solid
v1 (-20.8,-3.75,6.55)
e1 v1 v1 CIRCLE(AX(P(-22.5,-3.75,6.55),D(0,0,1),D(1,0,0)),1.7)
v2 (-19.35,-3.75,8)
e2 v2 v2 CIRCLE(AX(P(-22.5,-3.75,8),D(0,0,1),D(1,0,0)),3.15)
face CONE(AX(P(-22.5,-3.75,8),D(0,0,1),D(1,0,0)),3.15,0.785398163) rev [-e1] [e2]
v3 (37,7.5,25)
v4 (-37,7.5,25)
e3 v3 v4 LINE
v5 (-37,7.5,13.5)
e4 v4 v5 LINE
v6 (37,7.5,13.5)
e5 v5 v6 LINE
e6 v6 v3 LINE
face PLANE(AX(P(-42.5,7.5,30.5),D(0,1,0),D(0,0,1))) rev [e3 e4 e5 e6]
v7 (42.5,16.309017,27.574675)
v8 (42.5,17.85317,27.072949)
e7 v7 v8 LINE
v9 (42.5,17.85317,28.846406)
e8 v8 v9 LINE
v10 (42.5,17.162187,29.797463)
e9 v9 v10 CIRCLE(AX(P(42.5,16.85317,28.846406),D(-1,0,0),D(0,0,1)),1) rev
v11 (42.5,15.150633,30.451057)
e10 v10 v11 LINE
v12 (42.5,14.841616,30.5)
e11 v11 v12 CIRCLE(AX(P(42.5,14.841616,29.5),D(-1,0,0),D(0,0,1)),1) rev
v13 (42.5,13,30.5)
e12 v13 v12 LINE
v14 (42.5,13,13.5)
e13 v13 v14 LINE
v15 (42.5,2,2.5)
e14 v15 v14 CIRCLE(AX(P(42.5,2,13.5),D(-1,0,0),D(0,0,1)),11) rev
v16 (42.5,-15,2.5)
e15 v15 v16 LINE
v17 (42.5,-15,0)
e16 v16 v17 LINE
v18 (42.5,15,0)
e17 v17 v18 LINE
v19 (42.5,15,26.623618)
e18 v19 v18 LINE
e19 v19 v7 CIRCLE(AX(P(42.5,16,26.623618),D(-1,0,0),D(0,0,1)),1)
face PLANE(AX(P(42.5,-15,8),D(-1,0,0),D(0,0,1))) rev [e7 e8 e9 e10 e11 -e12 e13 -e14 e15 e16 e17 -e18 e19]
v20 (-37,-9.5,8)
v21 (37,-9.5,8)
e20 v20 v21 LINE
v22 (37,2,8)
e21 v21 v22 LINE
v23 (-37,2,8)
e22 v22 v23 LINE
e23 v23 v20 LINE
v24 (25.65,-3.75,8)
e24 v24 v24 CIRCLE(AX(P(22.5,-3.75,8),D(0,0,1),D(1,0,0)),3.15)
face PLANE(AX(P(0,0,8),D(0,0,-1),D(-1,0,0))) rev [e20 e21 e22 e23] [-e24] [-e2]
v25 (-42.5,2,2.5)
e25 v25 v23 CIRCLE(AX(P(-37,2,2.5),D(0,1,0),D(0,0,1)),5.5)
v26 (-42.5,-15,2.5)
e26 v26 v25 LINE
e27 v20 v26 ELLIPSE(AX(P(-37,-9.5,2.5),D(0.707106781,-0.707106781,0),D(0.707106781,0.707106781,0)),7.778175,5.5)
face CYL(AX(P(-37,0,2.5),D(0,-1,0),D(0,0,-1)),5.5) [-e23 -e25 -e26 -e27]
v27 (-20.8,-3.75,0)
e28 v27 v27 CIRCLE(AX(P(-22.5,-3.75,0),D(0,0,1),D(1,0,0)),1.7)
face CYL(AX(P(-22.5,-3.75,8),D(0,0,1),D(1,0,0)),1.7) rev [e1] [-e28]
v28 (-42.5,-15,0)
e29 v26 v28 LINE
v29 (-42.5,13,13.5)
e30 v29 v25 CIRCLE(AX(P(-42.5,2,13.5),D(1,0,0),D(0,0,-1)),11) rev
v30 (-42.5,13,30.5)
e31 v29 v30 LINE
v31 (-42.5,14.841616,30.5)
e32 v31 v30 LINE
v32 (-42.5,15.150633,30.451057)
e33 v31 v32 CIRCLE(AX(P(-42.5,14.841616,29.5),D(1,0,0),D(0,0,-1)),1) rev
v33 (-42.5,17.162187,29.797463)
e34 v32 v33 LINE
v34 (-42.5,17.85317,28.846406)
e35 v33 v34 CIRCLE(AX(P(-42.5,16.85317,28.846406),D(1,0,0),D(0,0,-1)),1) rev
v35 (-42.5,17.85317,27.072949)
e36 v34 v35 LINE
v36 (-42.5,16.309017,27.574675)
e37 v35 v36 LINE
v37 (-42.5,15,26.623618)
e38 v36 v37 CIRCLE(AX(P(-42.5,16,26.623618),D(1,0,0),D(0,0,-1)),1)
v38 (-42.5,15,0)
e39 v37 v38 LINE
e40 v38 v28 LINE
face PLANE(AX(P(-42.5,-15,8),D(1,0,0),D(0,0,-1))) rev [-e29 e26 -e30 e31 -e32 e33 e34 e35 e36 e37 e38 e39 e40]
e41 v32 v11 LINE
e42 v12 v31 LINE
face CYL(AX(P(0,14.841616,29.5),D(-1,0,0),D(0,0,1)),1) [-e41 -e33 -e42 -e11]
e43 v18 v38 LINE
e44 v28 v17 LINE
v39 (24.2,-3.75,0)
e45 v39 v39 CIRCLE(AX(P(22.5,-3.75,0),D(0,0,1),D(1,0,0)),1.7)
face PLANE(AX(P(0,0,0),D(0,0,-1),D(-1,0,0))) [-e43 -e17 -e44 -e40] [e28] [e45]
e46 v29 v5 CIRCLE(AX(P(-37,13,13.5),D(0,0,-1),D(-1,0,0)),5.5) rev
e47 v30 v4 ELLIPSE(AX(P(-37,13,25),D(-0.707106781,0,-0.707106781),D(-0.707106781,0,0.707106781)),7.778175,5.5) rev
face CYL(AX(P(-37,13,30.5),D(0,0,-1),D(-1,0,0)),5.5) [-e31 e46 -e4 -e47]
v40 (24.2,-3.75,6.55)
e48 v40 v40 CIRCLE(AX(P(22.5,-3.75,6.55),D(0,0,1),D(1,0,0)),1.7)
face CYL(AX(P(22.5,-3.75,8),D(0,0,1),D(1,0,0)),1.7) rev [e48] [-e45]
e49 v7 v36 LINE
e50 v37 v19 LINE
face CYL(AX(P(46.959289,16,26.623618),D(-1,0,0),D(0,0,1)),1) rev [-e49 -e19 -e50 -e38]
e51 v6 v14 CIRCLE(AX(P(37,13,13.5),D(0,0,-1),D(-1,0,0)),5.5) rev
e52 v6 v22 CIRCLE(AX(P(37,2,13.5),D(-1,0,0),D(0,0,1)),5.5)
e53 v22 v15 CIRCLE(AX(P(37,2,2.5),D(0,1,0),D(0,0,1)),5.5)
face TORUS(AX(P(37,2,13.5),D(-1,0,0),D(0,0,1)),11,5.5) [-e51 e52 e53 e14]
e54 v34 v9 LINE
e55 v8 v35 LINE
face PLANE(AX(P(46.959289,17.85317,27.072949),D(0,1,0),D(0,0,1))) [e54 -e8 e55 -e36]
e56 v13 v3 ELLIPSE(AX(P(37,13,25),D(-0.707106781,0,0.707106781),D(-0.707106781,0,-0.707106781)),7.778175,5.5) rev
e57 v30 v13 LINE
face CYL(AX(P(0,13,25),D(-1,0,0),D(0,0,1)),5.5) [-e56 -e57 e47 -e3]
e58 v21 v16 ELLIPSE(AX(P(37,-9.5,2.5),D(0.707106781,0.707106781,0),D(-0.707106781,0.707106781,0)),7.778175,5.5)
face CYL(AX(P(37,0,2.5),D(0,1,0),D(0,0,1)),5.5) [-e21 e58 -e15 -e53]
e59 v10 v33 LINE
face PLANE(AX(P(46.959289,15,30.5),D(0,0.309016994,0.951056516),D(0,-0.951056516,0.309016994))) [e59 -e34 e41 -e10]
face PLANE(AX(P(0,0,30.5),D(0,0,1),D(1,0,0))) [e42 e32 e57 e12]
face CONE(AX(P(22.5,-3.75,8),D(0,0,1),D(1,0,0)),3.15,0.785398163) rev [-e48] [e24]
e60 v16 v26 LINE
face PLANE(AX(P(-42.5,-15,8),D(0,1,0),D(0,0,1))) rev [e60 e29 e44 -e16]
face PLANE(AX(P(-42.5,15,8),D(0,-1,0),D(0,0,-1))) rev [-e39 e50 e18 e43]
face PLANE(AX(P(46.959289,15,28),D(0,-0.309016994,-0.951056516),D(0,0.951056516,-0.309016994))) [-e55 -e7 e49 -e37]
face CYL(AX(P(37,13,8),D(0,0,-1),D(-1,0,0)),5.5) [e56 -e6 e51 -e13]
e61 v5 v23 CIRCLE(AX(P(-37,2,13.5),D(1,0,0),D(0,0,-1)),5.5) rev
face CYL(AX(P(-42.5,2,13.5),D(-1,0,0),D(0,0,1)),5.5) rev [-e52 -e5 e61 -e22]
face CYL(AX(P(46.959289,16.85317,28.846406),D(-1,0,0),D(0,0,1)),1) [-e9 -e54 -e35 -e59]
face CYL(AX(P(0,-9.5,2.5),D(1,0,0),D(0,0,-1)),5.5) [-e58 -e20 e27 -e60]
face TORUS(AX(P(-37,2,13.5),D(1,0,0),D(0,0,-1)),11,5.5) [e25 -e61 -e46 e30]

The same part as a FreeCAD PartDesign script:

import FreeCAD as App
import Part
import Sketcher
from FreeCAD import Vector
Q = App.Units.Quantity


def edges_at(feature, points):
    """Names of the edges that pass closest to the given points."""
    edges = feature.Shape.Edges
    near = lambda p: min(range(len(edges)), key=lambda i: edges[i].distToShape(Part.Vertex(*p))[0])
    return sorted({f"Edge{near(p) + 1}" for p in points})

doc = App.newDocument("Part")
body = doc.addObject("PartDesign::Body", "Body")

sketch1 = body.newObject("Sketcher::SketchObject", "Sketch")
sketch1.AttachmentSupport = (doc.getObject("XY_Plane"), [""])
sketch1.MapMode = "FlatFace"
sketch1.addGeometry(Part.LineSegment(Vector(-42.5, 15, 0), Vector(-42.5, -15, 0)), False)
sketch1.addGeometry(Part.LineSegment(Vector(-42.5, -15, 0), Vector(42.5, -15, 0)), False)
sketch1.addGeometry(Part.LineSegment(Vector(42.5, -15, 0), Vector(42.5, 15, 0)), False)
sketch1.addGeometry(Part.LineSegment(Vector(42.5, 15, 0), Vector(-42.5, 15, 0)), False)
sketch1.addConstraint(Sketcher.Constraint("Coincident", 0, 2, 1, 1))
sketch1.addConstraint(Sketcher.Constraint("Coincident", 1, 2, 2, 1))
sketch1.addConstraint(Sketcher.Constraint("Coincident", 2, 2, 3, 1))
sketch1.addConstraint(Sketcher.Constraint("Coincident", 3, 2, 0, 1))
sketch1.addConstraint(Sketcher.Constraint("Vertical", 0))
sketch1.addConstraint(Sketcher.Constraint("Horizontal", 1))
sketch1.addConstraint(Sketcher.Constraint("Vertical", 2))
sketch1.addConstraint(Sketcher.Constraint("Horizontal", 3))
sketch1.addConstraint(Sketcher.Constraint("Symmetric", 0, 2, 2, 2, -1, 1))
sketch1.addConstraint(Sketcher.Constraint("DistanceX", 1, 1, 1, 2, 85.0))
sketch1.addConstraint(Sketcher.Constraint("DistanceY", 0, 2, 0, 1, 30.0))
pad1 = body.newObject("PartDesign::Pad", "Pad")
pad1.Profile = sketch1
pad1.Length = 8

sketch2 = body.newObject("Sketcher::SketchObject", "Sketch001")
sketch2.AttachmentSupport = (doc.getObject("XY_Plane"), [""])
sketch2.MapMode = "FlatFace"
sketch2.AttachmentOffset = App.Placement(Vector(0, 0, 8), App.Rotation())
sketch2.addGeometry(Part.LineSegment(Vector(-42.5, 15, 0), Vector(-42.5, 7.5, 0)), False)
sketch2.addGeometry(Part.LineSegment(Vector(-42.5, 7.5, 0), Vector(42.5, 7.5, 0)), False)
sketch2.addGeometry(Part.LineSegment(Vector(42.5, 7.5, 0), Vector(42.5, 15, 0)), False)
sketch2.addGeometry(Part.LineSegment(Vector(42.5, 15, 0), Vector(-42.5, 15, 0)), False)
sketch2.addConstraint(Sketcher.Constraint("Coincident", 0, 2, 1, 1))
sketch2.addConstraint(Sketcher.Constraint("Coincident", 1, 2, 2, 1))
sketch2.addConstraint(Sketcher.Constraint("Coincident", 2, 2, 3, 1))
sketch2.addConstraint(Sketcher.Constraint("Coincident", 3, 2, 0, 1))
sketch2.addConstraint(Sketcher.Constraint("Vertical", 0))
sketch2.addConstraint(Sketcher.Constraint("Horizontal", 1))
sketch2.addConstraint(Sketcher.Constraint("Vertical", 2))
sketch2.addConstraint(Sketcher.Constraint("Horizontal", 3))
sketch2.addConstraint(Sketcher.Constraint("DistanceX", 1, 1, 1, 2, 85.0))
sketch2.addConstraint(Sketcher.Constraint("DistanceY", 0, 2, 0, 1, 7.5))
sketch2.addConstraint(Sketcher.Constraint("DistanceY", -1, 1, 2, 2, 15.0))
sketch2.addConstraint(Sketcher.Constraint("DistanceX", 0, 2, -1, 1, 42.5))
pad2 = body.newObject("PartDesign::Pad", "Pad001")
pad2.Profile = sketch2
pad2.Length = 22.5

sketch3 = body.newObject("Sketcher::SketchObject", "Sketch002")
sketch3.AttachmentSupport = (doc.getObject("XY_Plane"), [""])
sketch3.MapMode = "FlatFace"
sketch3.AttachmentOffset = App.Placement(Vector(0, 0, 8), App.Rotation())
sketch3.addGeometry(Part.Circle(Vector(-22.5, -3.75, 0), Vector(0, 0, 1), 1.7), False)
sketch3.addGeometry(Part.Circle(Vector(22.5, -3.75, 0), Vector(0, 0, 1), 1.7), False)
sketch3.addConstraint(Sketcher.Constraint("Equal", 0, 1))
sketch3.addConstraint(Sketcher.Constraint("Symmetric", 0, 3, 1, 3, -2))
sketch3.addConstraint(Sketcher.Constraint("Diameter", 0, 3.4))
sketch3.addConstraint(Sketcher.Constraint("DistanceX", 0, 3, 1, 3, 45.0))
sketch3.addConstraint(Sketcher.Constraint("DistanceY", 0, 3, -1, 1, 3.75))
doc.recompute()
hole = body.newObject("PartDesign::Hole", "Hole")
hole.Profile = sketch3
hole.ThreadType = "None"
hole.Diameter = 3.4
hole.DepthType = "ThroughAll"
hole.HoleCutType = "Countersink"
hole.HoleCutDiameter = 6.3
hole.HoleCutCountersinkAngle = 90

sketch4 = body.newObject("Sketcher::SketchObject", "Sketch003")
sketch4.AttachmentSupport = (doc.getObject("YZ_Plane"), [""])
sketch4.MapMode = "FlatFace"
sketch4.AttachmentOffset = App.Placement(Vector(0, 0, -42.5), App.Rotation())
sketch4.addGeometry(Part.LineSegment(Vector(15, 30.5, 0), Vector(17.85317, 29.572949, 0)), False)
sketch4.addGeometry(Part.LineSegment(Vector(17.85317, 29.572949, 0), Vector(17.85317, 27.072949, 0)), False)
sketch4.addGeometry(Part.LineSegment(Vector(17.85317, 27.072949, 0), Vector(15, 28, 0)), False)
sketch4.addGeometry(Part.LineSegment(Vector(15, 28, 0), Vector(15, 30.5, 0)), False)
sketch4.addConstraint(Sketcher.Constraint("Coincident", 0, 2, 1, 1))
sketch4.addConstraint(Sketcher.Constraint("Coincident", 1, 2, 2, 1))
sketch4.addConstraint(Sketcher.Constraint("Coincident", 2, 2, 3, 1))
sketch4.addConstraint(Sketcher.Constraint("Coincident", 3, 2, 0, 1))
sketch4.addConstraint(Sketcher.Constraint("Vertical", 1))
sketch4.addConstraint(Sketcher.Constraint("Vertical", 3))
sketch4.addConstraint(Sketcher.Constraint("Parallel", 0, 2))
sketch4.addConstraint(Sketcher.Constraint("Angle", 0, Q("-18 deg")))
sketch4.addConstraint(Sketcher.Constraint("Distance", 0, 3.0))
sketch4.addConstraint(Sketcher.Constraint("DistanceY", 1, 2, 1, 1, 2.5))
sketch4.addConstraint(Sketcher.Constraint("DistanceX", -1, 1, 2, 2, 15.0))
sketch4.addConstraint(Sketcher.Constraint("DistanceY", -1, 1, 2, 2, 28.0))
pad3 = body.newObject("PartDesign::Pad", "Pad002")
pad3.Profile = sketch4
pad3.Length = 85
doc.recompute()

fillet = body.newObject("PartDesign::Fillet", "Fillet")
fillet.Base = (pad3, edges_at(pad3, [
    (0, -15, 8),
    (-42.5, -3.75, 8),
    (0, 7.5, 8),
    (-42.5, 7.5, 19.25),
    (42.5, 7.5, 19.25),
    (0, 7.5, 30.5),
    (42.5, -3.75, 8),
]))
fillet.Radius = 5.5
doc.recompute()

fillet2 = body.newObject("PartDesign::Fillet", "Fillet001")
fillet2.Base = (fillet, edges_at(fillet, [(0, 15, 28)]))
fillet2.Radius = 1
doc.recompute()

fillet3 = body.newObject("PartDesign::Fillet", "Fillet002")
fillet3.Base = (fillet2, edges_at(fillet2, [(0, 15, 30.5), (0, 17.853, 29.573)]))
fillet3.Radius = 1

doc.recompute()
